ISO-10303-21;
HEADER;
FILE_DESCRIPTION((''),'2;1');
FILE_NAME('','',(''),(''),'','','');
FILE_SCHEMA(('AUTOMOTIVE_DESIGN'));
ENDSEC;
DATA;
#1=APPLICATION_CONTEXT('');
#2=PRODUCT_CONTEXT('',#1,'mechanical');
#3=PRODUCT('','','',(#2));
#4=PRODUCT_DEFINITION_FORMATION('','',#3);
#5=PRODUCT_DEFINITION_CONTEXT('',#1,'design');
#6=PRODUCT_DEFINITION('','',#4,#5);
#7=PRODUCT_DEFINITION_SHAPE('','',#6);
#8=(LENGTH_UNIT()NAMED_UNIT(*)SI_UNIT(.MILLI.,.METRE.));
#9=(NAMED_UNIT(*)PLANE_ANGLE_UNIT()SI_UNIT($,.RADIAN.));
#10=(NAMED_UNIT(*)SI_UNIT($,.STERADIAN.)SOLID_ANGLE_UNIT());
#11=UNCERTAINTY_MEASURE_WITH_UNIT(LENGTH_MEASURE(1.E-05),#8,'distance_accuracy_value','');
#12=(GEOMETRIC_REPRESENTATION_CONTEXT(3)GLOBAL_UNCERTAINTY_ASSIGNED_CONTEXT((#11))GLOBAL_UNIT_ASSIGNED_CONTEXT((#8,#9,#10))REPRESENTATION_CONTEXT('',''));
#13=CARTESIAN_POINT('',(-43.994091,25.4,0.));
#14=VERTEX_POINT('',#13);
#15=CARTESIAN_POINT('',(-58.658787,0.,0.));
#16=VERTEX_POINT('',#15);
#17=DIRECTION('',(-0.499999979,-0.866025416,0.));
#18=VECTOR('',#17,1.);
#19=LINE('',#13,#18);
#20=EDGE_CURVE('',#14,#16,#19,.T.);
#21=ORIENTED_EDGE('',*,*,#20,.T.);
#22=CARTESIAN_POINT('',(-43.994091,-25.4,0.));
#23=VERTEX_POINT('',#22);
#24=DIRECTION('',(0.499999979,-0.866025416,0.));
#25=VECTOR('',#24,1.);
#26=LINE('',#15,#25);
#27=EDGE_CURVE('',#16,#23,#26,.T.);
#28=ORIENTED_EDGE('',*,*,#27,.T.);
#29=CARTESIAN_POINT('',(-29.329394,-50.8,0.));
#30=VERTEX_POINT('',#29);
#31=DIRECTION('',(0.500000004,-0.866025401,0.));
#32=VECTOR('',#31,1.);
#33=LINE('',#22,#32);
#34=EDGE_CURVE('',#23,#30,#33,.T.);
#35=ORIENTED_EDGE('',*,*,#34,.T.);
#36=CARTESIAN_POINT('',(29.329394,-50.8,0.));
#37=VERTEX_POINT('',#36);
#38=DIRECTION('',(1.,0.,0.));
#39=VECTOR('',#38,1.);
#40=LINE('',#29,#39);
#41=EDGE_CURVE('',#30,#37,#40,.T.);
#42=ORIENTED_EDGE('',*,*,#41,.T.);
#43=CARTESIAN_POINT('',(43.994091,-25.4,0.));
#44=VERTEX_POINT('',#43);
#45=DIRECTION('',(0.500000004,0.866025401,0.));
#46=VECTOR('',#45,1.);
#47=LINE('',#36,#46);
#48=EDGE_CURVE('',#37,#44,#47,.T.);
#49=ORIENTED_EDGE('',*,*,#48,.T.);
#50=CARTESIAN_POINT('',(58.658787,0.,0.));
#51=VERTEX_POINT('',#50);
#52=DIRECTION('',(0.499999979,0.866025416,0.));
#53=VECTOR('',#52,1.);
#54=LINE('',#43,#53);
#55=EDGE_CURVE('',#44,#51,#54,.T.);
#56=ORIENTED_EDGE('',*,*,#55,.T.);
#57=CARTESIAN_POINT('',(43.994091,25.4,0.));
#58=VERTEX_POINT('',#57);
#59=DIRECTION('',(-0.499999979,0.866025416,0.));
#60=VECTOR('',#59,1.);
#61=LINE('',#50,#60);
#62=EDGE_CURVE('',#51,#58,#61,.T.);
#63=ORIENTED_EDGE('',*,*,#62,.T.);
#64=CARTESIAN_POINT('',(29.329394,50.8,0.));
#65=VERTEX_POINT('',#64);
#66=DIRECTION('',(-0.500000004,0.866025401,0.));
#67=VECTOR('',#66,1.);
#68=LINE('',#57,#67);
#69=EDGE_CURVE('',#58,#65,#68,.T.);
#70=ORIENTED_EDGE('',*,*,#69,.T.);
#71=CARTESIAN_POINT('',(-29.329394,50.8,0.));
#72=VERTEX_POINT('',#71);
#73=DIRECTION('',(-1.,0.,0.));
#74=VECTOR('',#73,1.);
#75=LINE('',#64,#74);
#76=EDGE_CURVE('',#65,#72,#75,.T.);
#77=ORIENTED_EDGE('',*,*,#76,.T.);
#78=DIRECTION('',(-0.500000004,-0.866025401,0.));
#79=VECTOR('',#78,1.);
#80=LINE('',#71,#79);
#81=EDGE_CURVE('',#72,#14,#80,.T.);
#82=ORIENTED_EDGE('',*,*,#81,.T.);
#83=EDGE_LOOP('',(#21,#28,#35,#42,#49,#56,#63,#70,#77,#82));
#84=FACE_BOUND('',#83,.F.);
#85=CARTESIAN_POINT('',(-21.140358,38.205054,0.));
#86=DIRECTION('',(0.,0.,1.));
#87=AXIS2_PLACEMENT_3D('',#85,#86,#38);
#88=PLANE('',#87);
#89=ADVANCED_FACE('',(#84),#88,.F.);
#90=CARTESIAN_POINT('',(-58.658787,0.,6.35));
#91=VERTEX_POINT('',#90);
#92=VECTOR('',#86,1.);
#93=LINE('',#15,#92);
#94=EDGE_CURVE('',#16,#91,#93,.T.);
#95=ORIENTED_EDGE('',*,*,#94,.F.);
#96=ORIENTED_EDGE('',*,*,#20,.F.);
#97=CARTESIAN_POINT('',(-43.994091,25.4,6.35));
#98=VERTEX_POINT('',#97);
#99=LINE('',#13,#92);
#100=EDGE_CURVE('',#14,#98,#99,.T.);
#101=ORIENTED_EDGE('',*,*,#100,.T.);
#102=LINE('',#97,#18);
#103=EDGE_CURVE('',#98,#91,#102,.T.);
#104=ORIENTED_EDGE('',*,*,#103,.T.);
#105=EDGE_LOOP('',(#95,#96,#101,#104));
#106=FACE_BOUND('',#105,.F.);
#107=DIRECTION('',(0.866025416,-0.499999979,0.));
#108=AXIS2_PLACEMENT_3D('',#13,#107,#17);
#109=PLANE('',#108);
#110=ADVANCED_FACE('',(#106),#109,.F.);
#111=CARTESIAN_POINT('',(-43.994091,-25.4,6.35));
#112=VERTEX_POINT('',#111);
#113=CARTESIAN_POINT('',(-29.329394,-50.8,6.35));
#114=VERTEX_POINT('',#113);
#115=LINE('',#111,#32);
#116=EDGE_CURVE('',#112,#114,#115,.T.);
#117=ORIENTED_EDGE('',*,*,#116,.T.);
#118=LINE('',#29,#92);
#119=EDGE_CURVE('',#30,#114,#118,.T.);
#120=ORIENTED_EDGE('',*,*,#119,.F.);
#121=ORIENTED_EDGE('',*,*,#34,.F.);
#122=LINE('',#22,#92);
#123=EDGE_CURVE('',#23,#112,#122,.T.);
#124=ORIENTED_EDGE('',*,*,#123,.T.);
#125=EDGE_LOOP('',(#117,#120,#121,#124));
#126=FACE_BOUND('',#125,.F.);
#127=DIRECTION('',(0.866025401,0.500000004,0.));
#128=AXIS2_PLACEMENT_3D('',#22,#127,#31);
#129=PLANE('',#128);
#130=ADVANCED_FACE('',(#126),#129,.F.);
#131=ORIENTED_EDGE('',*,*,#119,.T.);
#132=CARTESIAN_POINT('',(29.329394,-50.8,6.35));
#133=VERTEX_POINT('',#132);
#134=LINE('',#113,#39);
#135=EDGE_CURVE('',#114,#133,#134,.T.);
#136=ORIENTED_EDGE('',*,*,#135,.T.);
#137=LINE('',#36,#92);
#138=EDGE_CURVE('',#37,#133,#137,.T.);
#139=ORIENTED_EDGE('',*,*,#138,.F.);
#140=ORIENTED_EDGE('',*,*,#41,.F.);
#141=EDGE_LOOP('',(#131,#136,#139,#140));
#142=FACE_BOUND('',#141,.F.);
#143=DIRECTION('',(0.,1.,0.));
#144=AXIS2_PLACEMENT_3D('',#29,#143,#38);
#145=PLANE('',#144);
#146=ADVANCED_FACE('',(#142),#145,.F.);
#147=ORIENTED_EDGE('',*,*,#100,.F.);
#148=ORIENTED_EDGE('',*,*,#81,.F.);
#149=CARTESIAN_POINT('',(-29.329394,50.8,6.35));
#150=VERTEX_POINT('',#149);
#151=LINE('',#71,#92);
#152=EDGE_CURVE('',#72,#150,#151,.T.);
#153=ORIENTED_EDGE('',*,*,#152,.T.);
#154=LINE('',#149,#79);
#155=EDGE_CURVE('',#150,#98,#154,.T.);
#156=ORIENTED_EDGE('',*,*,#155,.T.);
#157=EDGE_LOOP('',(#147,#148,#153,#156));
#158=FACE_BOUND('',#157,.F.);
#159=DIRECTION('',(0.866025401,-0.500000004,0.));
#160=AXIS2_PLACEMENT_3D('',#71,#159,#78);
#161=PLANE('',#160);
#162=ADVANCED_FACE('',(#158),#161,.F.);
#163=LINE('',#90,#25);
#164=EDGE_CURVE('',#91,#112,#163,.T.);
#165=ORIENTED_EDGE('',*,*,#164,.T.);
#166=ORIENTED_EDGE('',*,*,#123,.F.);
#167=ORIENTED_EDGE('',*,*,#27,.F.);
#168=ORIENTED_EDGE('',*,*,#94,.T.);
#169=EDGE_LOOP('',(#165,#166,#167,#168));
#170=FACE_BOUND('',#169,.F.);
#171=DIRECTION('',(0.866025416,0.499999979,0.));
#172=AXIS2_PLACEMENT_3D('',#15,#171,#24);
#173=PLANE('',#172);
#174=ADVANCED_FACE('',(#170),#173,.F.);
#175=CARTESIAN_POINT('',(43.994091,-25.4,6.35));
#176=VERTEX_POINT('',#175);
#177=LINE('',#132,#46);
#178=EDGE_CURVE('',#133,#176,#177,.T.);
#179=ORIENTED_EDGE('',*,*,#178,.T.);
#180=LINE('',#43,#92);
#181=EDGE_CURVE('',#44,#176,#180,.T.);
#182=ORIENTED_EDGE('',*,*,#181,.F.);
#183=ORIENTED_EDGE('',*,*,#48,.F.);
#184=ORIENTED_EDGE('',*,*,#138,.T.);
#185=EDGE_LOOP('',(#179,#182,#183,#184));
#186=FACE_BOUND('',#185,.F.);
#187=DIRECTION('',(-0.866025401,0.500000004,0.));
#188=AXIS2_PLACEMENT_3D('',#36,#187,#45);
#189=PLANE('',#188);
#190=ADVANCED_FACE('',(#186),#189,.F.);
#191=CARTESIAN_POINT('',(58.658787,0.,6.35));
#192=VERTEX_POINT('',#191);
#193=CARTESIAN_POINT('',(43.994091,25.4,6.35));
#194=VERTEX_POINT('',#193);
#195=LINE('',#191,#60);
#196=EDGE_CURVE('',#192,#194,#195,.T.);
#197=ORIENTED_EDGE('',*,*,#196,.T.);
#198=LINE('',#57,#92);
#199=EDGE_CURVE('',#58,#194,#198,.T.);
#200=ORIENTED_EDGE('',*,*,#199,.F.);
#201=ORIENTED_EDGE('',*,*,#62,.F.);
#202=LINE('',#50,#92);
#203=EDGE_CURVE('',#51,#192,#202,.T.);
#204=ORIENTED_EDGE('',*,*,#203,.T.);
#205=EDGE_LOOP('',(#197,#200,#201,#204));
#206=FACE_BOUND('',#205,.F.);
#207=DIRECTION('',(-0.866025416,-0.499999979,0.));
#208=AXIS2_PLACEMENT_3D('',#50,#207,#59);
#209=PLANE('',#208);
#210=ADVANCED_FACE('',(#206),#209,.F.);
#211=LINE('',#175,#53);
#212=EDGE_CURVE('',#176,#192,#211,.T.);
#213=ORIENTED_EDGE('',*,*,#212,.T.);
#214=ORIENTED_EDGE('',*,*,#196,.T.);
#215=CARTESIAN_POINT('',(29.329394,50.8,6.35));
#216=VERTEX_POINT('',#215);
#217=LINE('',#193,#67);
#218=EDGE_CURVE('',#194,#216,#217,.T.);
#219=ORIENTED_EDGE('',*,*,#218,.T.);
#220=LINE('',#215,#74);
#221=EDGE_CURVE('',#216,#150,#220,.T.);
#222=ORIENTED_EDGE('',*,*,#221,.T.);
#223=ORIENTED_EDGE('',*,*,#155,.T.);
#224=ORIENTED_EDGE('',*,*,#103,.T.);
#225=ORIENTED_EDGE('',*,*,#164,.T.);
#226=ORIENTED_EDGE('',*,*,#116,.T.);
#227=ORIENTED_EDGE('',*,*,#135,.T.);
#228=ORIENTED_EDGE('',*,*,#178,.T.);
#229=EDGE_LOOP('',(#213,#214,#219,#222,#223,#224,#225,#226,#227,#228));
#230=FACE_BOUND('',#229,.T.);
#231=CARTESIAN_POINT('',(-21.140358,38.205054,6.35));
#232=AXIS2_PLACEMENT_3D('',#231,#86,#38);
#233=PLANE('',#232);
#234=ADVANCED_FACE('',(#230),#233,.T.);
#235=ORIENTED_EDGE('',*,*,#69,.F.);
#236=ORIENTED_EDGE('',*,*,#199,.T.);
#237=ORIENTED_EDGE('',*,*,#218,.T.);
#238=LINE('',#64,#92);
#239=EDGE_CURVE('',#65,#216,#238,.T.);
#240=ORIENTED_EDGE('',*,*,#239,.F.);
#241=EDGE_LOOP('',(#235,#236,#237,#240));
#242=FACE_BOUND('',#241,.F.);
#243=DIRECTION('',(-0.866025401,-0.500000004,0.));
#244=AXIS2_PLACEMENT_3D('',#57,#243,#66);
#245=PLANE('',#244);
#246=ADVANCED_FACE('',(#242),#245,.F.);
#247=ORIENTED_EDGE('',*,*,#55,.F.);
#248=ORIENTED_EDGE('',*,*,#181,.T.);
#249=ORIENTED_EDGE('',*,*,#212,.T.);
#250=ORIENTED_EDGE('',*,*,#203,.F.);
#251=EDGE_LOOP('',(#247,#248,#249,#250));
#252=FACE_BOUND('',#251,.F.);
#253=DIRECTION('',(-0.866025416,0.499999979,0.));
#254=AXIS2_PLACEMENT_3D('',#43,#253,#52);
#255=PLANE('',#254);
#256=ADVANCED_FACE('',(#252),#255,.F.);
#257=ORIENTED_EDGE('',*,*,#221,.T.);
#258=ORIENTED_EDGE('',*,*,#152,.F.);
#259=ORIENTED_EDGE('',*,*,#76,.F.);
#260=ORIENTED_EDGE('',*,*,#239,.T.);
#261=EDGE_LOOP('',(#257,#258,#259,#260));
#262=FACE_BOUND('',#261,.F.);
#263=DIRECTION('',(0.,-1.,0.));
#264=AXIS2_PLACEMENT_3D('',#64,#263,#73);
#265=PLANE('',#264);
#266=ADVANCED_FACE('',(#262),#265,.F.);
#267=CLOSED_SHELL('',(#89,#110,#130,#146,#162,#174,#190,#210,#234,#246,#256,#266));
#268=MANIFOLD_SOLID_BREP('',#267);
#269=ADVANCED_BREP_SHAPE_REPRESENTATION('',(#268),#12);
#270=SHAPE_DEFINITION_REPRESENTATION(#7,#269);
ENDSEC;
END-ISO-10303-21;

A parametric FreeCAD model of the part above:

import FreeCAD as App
import Part
import Sketcher
Q = App.Units.Quantity


def add_polygon(sketch, points):
    """Adds a closed chain of lines whose ends are joined by coincident constraints."""
    first, n = sketch.GeometryCount, len(points)
    for a, b in zip(points, points[1:] + points[:1]):
        sketch.addGeometry(Part.LineSegment(App.Vector(*a, 0), App.Vector(*b, 0)), False)
    for i in range(n):
        sketch.addConstraint(Sketcher.Constraint("Coincident", first + i, 2, first + (i + 1) % n, 1))

doc = App.newDocument("Part")
body = doc.addObject("PartDesign::Body", "Body")

sketch1 = doc.addObject("Sketcher::SketchObject", "Sketch")
body.addObject(sketch1)
sketch1.AttachmentSupport = (doc.XY_Plane, [""])
sketch1.MapMode = "FlatFace"
add_polygon(sketch1, [(-29, 51), (-44, 25), (-59, 0), (-44, -25), (-29, -51), (29, -51), (44, -25), (59, 0), (44, 25), (29, 51)])
sketch1.addConstraint(Sketcher.Constraint("Horizontal", 4))
sketch1.addConstraint(Sketcher.Constraint("Horizontal", 9))
sketch1.addConstraint(Sketcher.Constraint("Symmetric", 0, 2, 5, 2, -1, 1))
sketch1.addConstraint(Sketcher.Constraint("Symmetric", 1, 2, 6, 2, -1, 1))
sketch1.addConstraint(Sketcher.Constraint("Symmetric", 2, 2, 7, 2, -1, 1))
sketch1.addConstraint(Sketcher.Constraint("Symmetric", 3, 2, 8, 2, -1, 1))
sketch1.addConstraint(Sketcher.Constraint("Symmetric", 2, 2, 5, 2, -2))
sketch1.addConstraint(Sketcher.Constraint("PointOnObject", 1, 2, -1))
sketch1.addConstraint(Sketcher.Constraint("Parallel", 0, 1))
sketch1.addConstraint(Sketcher.Constraint("Parallel", 2, 3))
sketch1.addConstraint(Sketcher.Constraint("Parallel", 1, 5))
sketch1.addConstraint(Sketcher.Constraint("Equal", 0, 1))
sketch1.addConstraint(Sketcher.Constraint("DistanceY", -1, 1, 0, 2, Q("1 in")))
sketch1.addConstraint(Sketcher.Constraint("Angle", 0, Q("-120 deg")))
sketch1.addConstraint(Sketcher.Constraint("DistanceX", 4, 1, 4, 2, Q("58.658788 mm")))
pad1 = doc.addObject("PartDesign::Pad", "Pad")
body.addObject(pad1)
pad1.Profile = sketch1
pad1.Length = Q("0.25 in")

doc.recompute()
